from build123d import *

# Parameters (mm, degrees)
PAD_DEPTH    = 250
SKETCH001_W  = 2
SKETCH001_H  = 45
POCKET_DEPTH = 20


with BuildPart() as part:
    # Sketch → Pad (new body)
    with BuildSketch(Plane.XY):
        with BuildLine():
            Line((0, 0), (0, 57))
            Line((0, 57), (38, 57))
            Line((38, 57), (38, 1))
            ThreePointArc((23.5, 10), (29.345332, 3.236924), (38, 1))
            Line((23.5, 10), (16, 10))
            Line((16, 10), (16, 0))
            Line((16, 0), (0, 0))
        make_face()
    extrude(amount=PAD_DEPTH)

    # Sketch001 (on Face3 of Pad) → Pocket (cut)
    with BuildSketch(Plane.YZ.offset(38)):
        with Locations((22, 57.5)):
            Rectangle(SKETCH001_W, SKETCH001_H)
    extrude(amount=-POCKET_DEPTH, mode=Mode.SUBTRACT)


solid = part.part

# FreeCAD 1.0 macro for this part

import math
import FreeCAD as App
import Part
import Sketcher
from FreeCAD import Vector
Q = App.Units.Quantity


def add_polygon(sketch, points):
    """Adds a closed chain of lines whose ends are joined by coincident constraints."""
    first, n = sketch.GeometryCount, len(points)
    for a, b in zip(points, points[1:] + points[:1]):
        sketch.addGeometry(Part.LineSegment(App.Vector(*a, 0), App.Vector(*b, 0)), False)
    for i in range(n):
        sketch.addConstraint(Sketcher.Constraint("Coincident", first + i, 2, first + (i + 1) % n, 1))

doc = App.newDocument("Part")
body = doc.addObject("PartDesign::Body", "Body")

sketch1 = body.newObject("Sketcher::SketchObject", "Sketch")
sketch1.AttachmentSupport = (doc.getObject("XY_Plane"), [""])
sketch1.MapMode = "FlatFace"
sketch1.addGeometry([
    Part.LineSegment(Vector(0, 57, 0), Vector(0, 0, 0)),
    Part.LineSegment(Vector(0, 0, 0), Vector(16, 0, 0)),
    Part.LineSegment(Vector(16, 0, 0), Vector(16, 10, 0)),
    Part.LineSegment(Vector(16, 10, 0), Vector(24, 10, 0)),
    Part.ArcOfCircle(Part.Circle(Vector(37, 16, 0), Vector(0, 0, 1), 15), math.radians(-156), math.radians(-87)),
    Part.LineSegment(Vector(38, 1, 0), Vector(38, 57, 0)),
    Part.LineSegment(Vector(38, 57, 0), Vector(0, 57, 0)),
], False)
sketch1.addConstraint([
    Sketcher.Constraint("Coincident", 0, 2, 1, 1),
    Sketcher.Constraint("Coincident", 1, 2, 2, 1),
    Sketcher.Constraint("Coincident", 2, 2, 3, 1),
    Sketcher.Constraint("Coincident", 3, 2, 4, 1),
    Sketcher.Constraint("Coincident", 4, 2, 5, 1),
    Sketcher.Constraint("Coincident", 5, 2, 6, 1),
    Sketcher.Constraint("Coincident", 6, 2, 0, 1),
    Sketcher.Constraint("Vertical", 0),
    Sketcher.Constraint("Horizontal", 1),
    Sketcher.Constraint("Vertical", 2),
    Sketcher.Constraint("Horizontal", 3),
    Sketcher.Constraint("Vertical", 5),
    Sketcher.Constraint("Horizontal", 6),
    Sketcher.Constraint("Coincident", 0, 2, -1, 1),
    Sketcher.Constraint("Radius", 4, Q("15.000001 mm")),
    Sketcher.Constraint("DistanceX", 1, 1, 1, 2, Q("16 mm")),
    Sketcher.Constraint("DistanceX", 6, 2, 6, 1, Q("38 mm")),
    Sketcher.Constraint("DistanceY", 0, 2, 0, 1, Q("57 mm")),
    Sketcher.Constraint("DistanceY", 2, 1, 2, 2, Q("10 mm")),
    Sketcher.Constraint("DistanceY", 5, 1, 5, 2, Q("56 mm")),
    Sketcher.Constraint("DistanceX", 3, 1, 3, 2, Q("7.5 mm")),
])
pad1 = body.newObject("PartDesign::Pad", "Pad")
pad1.Profile = sketch1
pad1.Length = 250

sketch2 = body.newObject("Sketcher::SketchObject", "Sketch001")
sketch2.AttachmentSupport = (doc.getObject("YZ_Plane"), [""])
sketch2.MapMode = "FlatFace"
sketch2.AttachmentOffset = App.Placement(Vector(0, 0, 38), App.Rotation())
add_polygon(sketch2, [(21, 80), (21, 35), (23, 35), (23, 80)])
sketch2.addConstraint([
    Sketcher.Constraint("Vertical", 0),
    Sketcher.Constraint("Horizontal", 1),
    Sketcher.Constraint("Vertical", 2),
    Sketcher.Constraint("Horizontal", 3),
    Sketcher.Constraint("DistanceX", 1, 1, 1, 2, Q("2 mm")),
    Sketcher.Constraint("DistanceY", 0, 2, 0, 1, Q("45 mm")),
    Sketcher.Constraint("DistanceX", -1, 1, 0, 2, Q("21 mm")),
    Sketcher.Constraint("DistanceY", -1, 1, 0, 2, Q("35 mm")),
])
pocket1 = body.newObject("PartDesign::Pocket", "Pocket")
pocket1.Profile = sketch2
pocket1.Length = 20

doc.recompute()
